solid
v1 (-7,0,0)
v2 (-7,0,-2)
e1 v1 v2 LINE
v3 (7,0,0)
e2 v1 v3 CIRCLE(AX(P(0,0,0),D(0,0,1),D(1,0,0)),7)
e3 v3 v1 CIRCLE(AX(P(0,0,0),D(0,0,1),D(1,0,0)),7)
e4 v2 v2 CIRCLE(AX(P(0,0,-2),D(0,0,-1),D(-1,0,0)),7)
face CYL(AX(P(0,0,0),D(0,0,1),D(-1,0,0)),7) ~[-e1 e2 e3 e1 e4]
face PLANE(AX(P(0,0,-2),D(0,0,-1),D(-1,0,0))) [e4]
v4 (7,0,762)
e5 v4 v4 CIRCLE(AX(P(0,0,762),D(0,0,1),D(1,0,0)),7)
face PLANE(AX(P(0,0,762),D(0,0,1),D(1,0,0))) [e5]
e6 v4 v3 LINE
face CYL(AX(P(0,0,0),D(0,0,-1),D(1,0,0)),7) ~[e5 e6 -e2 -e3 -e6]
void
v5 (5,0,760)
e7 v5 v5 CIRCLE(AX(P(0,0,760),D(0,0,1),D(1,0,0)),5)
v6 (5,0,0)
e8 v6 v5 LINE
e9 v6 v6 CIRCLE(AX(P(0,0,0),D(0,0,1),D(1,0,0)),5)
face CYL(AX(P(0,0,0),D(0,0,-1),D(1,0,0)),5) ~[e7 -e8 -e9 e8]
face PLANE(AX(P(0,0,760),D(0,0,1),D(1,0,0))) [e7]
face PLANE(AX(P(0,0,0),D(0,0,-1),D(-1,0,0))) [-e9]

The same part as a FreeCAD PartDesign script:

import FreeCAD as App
import Part
import Sketcher
Q = App.Units.Quantity

doc = App.newDocument("Part")
body = doc.addObject("PartDesign::Body", "Body")

# Sketch on XY plane
sketch1 = body.newObject("Sketcher::SketchObject", "Sketch")
sketch1.AttachmentSupport = (doc.getObject("XY_Plane"), [""])
sketch1.MapMode = "FlatFace"
sketch1.addGeometry([
    Part.Circle(App.Vector(0, 0, 0), App.Vector(0, 0, 1), 7),
    Part.Circle(App.Vector(0, 0, 0), App.Vector(0, 0, 1), 5),
], False)
sketch1.addConstraint([
    Sketcher.Constraint("Coincident", 0, 3, -1, 1),
    Sketcher.Constraint("Coincident", 1, 3, -1, 1),
    Sketcher.Constraint("Diameter", 0, Q("14 mm")),
    Sketcher.Constraint("Diameter", 1, Q("10 mm")),
])
pad1 = body.newObject("PartDesign::Pad", "Pad")
pad1.Profile = sketch1
pad1.Length = 760

# Sketch on XY plane
sketch2 = body.newObject("Sketcher::SketchObject", "Sketch001")
sketch2.AttachmentSupport = (doc.getObject("XY_Plane"), [""])
sketch2.MapMode = "FlatFace"
sketch2.AttachmentOffset = App.Placement(App.Vector(0, 0, 760), App.Rotation())
sketch2.addGeometry(Part.Circle(App.Vector(0, 0, 0), App.Vector(0, 0, 1), 7), False)
sketch2.addConstraint([
    Sketcher.Constraint("Coincident", 0, 3, -1, 1),
    Sketcher.Constraint("Diameter", 0, Q("14 mm")),
])
pad2 = body.newObject("PartDesign::Pad", "Pad001")
pad2.Profile = sketch2
pad2.Length = 2

# Sketch on XY plane
sketch3 = body.newObject("Sketcher::SketchObject", "Sketch002")
sketch3.AttachmentSupport = (doc.getObject("XY_Plane"), [""])
sketch3.MapMode = "FlatFace"
sketch3.addGeometry(Part.Circle(App.Vector(0, 0, 0), App.Vector(0, 0, 1), 7), False)
sketch3.addConstraint([
    Sketcher.Constraint("Coincident", 0, 3, -1, 1),
    Sketcher.Constraint("Diameter", 0, Q("14 mm")),
])
pad3 = body.newObject("PartDesign::Pad", "Pad002")
pad3.Profile = sketch3
pad3.Length = 2
pad3.Reversed = True

doc.recompute()
